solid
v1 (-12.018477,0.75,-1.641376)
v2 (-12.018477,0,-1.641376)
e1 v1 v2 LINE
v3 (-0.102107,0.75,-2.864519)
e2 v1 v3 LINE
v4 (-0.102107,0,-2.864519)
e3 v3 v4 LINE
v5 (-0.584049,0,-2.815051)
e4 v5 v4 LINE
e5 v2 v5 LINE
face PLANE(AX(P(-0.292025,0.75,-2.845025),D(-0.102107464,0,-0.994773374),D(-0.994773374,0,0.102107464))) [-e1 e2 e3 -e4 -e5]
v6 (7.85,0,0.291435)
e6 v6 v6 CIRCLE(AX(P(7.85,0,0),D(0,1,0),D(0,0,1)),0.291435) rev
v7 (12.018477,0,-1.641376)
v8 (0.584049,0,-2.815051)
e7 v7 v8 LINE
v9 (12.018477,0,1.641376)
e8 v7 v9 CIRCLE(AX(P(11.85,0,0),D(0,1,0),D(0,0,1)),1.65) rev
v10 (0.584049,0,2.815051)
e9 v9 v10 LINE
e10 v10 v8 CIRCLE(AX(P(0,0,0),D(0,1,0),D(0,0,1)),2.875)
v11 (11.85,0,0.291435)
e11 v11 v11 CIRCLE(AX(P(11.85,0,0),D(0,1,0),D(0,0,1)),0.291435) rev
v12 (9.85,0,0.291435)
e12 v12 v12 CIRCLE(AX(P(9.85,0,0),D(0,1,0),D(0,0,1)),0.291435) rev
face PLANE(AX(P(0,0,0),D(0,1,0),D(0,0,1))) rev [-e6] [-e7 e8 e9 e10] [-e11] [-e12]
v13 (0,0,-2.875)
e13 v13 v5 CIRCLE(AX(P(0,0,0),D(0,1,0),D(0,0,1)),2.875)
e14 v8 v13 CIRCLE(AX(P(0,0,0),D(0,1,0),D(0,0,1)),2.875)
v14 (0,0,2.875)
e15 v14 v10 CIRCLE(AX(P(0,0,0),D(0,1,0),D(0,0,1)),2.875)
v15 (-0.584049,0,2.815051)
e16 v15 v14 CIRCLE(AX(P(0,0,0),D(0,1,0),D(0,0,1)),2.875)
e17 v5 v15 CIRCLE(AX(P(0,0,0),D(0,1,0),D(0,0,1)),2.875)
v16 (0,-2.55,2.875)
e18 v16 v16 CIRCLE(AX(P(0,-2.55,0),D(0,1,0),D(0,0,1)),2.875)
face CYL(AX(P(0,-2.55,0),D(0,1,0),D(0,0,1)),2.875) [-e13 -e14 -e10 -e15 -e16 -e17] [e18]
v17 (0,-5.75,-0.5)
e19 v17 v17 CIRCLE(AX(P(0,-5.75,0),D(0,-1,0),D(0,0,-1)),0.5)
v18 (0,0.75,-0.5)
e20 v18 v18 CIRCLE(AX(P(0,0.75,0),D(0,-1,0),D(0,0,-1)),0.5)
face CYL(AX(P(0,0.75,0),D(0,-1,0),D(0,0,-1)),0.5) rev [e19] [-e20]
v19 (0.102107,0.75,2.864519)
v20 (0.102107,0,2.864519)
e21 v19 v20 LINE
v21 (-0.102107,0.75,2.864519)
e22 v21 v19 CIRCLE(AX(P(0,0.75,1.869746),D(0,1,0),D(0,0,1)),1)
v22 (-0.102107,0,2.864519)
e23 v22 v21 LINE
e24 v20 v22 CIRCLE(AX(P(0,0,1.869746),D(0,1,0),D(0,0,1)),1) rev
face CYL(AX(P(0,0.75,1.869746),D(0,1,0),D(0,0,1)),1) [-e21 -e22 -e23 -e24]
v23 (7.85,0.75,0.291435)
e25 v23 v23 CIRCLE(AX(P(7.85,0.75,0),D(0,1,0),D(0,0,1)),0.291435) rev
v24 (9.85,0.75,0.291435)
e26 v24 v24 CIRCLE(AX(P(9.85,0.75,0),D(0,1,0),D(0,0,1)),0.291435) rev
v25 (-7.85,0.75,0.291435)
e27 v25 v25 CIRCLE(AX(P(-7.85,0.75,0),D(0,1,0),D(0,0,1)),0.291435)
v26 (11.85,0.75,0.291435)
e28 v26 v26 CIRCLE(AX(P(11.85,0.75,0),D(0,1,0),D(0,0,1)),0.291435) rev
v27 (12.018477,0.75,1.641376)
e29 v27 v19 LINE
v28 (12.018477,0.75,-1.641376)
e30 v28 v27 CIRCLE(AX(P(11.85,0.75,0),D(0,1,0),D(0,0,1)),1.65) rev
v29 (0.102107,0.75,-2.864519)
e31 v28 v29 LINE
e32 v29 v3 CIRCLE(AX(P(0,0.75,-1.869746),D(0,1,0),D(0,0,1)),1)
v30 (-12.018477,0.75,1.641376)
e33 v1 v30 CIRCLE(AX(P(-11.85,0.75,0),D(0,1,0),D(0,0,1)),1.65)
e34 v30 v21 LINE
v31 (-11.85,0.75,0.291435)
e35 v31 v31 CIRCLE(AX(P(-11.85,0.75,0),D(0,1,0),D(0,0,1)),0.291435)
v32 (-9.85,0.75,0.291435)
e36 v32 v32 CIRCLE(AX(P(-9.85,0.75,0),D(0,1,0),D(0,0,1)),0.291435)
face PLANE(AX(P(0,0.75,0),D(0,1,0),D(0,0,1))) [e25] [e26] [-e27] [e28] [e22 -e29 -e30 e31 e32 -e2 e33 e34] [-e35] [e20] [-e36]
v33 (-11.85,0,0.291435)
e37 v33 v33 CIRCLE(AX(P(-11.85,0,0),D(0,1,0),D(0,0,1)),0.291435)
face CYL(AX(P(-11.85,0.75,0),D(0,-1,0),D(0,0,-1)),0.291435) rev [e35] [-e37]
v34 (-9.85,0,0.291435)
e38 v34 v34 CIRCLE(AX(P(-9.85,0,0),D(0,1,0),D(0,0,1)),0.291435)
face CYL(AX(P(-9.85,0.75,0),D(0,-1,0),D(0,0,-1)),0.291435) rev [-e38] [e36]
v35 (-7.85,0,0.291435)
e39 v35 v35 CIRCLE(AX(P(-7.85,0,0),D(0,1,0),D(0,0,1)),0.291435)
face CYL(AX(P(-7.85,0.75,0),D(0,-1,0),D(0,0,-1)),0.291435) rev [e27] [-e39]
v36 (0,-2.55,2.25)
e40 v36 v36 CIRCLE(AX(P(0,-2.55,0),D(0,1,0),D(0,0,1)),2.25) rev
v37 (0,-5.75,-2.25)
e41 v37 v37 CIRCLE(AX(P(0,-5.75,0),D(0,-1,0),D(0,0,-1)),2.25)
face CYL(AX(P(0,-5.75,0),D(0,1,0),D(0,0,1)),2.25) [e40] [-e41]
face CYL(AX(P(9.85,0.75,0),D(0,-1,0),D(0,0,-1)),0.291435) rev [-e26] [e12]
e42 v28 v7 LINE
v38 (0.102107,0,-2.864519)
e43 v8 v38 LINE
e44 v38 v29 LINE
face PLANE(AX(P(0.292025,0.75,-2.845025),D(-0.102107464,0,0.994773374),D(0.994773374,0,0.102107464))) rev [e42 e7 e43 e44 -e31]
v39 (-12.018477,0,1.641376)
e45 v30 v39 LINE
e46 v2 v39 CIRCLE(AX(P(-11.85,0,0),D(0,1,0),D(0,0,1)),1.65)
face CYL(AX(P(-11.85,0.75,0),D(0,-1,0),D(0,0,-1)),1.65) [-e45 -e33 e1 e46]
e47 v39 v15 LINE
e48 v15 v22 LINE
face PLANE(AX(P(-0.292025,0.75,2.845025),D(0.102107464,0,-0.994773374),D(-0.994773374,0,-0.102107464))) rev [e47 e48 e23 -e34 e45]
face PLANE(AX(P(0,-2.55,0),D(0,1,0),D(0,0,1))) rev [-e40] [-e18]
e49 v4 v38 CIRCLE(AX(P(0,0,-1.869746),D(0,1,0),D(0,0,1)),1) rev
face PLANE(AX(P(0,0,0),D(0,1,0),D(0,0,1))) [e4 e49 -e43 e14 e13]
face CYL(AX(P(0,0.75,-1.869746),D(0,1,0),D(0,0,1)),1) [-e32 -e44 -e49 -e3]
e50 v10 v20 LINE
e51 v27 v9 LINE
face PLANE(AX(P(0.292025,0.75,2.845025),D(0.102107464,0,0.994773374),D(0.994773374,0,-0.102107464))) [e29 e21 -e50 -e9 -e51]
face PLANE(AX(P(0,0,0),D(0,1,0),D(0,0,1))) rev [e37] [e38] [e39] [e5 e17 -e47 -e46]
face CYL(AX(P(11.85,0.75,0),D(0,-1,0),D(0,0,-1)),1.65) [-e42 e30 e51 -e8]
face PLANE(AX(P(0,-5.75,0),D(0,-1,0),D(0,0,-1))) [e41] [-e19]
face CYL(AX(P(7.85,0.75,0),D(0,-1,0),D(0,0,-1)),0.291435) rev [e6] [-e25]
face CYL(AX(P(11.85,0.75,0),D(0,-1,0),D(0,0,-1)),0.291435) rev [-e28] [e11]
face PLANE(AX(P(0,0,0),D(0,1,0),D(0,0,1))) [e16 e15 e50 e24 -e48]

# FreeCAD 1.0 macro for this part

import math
import FreeCAD as App
import Part
import Sketcher


def edges_at(feature, points):
    """Names of the edges that pass closest to the given points."""
    edges = feature.Shape.Edges
    near = lambda p: min(range(len(edges)), key=lambda i: edges[i].distToShape(Part.Vertex(*p))[0])
    return sorted({f"Edge{near(p) + 1}" for p in points})

doc = App.newDocument("Part")
body = doc.addObject("PartDesign::Body", "Body")

sketch1 = doc.addObject("Sketcher::SketchObject", "Sketch")
body.addObject(sketch1)
sketch1.AttachmentSupport = (doc.XZ_Plane, [""])
sketch1.MapMode = "FlatFace"
sketch1.addGeometry(Part.Circle(App.Vector(0, 0, 0), App.Vector(0, 0, 1), 2.875), False)
sketch1.addConstraint([
    Sketcher.Constraint("Coincident", 0, 3, -1, 1),
    Sketcher.Constraint("Diameter", 0, 5.75),
])
pad1 = doc.addObject("PartDesign::Pad", "Pad")
body.addObject(pad1)
pad1.Profile = sketch1
pad1.Length = 2.55

sketch2 = doc.addObject("Sketcher::SketchObject", "Sketch001")
body.addObject(sketch2)
sketch2.AttachmentSupport = (doc.XZ_Plane, [""])
sketch2.MapMode = "FlatFace"
sketch2.addGeometry([
    Part.LineSegment(App.Vector(-0.584049, -2.815051, 0), App.Vector(-12.018477, -1.641376, 0)),
    Part.ArcOfCircle(Part.Circle(App.Vector(-11.85, 0, 0), App.Vector(0, 0, 1), 1.65), math.radians(95.860541), math.radians(264.139459)),
    Part.LineSegment(App.Vector(-12.018477, 1.641376, 0), App.Vector(-0.584049, 2.815051, 0)),
    Part.LineSegment(App.Vector(-0.584049, 2.815051, 0), App.Vector(0, 2.875, 0)),
    Part.LineSegment(App.Vector(0, 2.875, 0), App.Vector(0.584049, 2.815051, 0)),
    Part.LineSegment(App.Vector(0.584049, 2.815051, 0), App.Vector(12.018477, 1.641376, 0)),
    Part.ArcOfCircle(Part.Circle(App.Vector(11.85, 0, 0), App.Vector(0, 0, 1), 1.65), math.radians(-84.139459), math.radians(84.139459)),
    Part.LineSegment(App.Vector(12.018477, -1.641376, 0), App.Vector(0.584049, -2.815051, 0)),
    Part.LineSegment(App.Vector(0.584049, -2.815051, 0), App.Vector(0, -2.875, 0)),
    Part.LineSegment(App.Vector(0, -2.875, 0), App.Vector(-0.584049, -2.815051, 0)),
    Part.Circle(App.Vector(-11.85, 0, 0), App.Vector(0, 0, 1), 0.291435),
    Part.Circle(App.Vector(-9.85, 0, 0), App.Vector(0, 0, 1), 0.291435),
    Part.Circle(App.Vector(-7.85, 0, 0), App.Vector(0, 0, 1), 0.291435),
    Part.Circle(App.Vector(9.85, 0, 0), App.Vector(0, 0, 1), 0.291435),
    Part.Circle(App.Vector(11.85, 0, 0), App.Vector(0, 0, 1), 0.291435),
    Part.Circle(App.Vector(7.85, 0, 0), App.Vector(0, 0, 1), 0.291435),
], False)
sketch2.addConstraint([
    Sketcher.Constraint("Tangent", 0, 2, 1, 2),
    Sketcher.Constraint("Tangent", 1, 1, 2, 1),
    Sketcher.Constraint("Coincident", 2, 2, 3, 1),
    Sketcher.Constraint("Coincident", 3, 2, 4, 1),
    Sketcher.Constraint("Coincident", 4, 2, 5, 1),
    Sketcher.Constraint("Tangent", 5, 2, 6, 2),
    Sketcher.Constraint("Tangent", 6, 1, 7, 1),
    Sketcher.Constraint("Coincident", 7, 2, 8, 1),
    Sketcher.Constraint("Coincident", 8, 2, 9, 1),
    Sketcher.Constraint("Coincident", 9, 2, 0, 1),
    Sketcher.Constraint("Coincident", 10, 3, 1, 3),
    Sketcher.Constraint("Coincident", 14, 3, 6, 3),
    Sketcher.Constraint("Equal", 1, 6),
    Sketcher.Constraint("Equal", 10, 11),
    Sketcher.Constraint("Equal", 11, 12),
    Sketcher.Constraint("Equal", 12, 13),
    Sketcher.Constraint("Equal", 13, 14),
    Sketcher.Constraint("Equal", 14, 15),
    Sketcher.Constraint("Symmetric", 1, 3, 6, 3, -1, 1),
    Sketcher.Constraint("Symmetric", 11, 3, 13, 3, -1, 1),
    Sketcher.Constraint("Symmetric", 12, 3, 15, 3, -1, 1),
    Sketcher.Constraint("Symmetric", 2, 2, 7, 2, -1, 1),
    Sketcher.Constraint("Symmetric", 3, 2, 8, 2, -1, 1),
    Sketcher.Constraint("Symmetric", 4, 2, 9, 2, -1, 1),
    Sketcher.Constraint("Symmetric", 2, 2, 4, 2, -2),
    Sketcher.Constraint("PointOnObject", 1, 3, -1),
    Sketcher.Constraint("PointOnObject", 11, 3, -1),
    Sketcher.Constraint("PointOnObject", 12, 3, -1),
    Sketcher.Constraint("PointOnObject", 3, 2, -2),
    Sketcher.Constraint("Parallel", 2, 3),
    Sketcher.Constraint("Radius", 1, 1.65),
    Sketcher.Constraint("DistanceX", 1, 3, 11, 3, 2.0),
    Sketcher.Constraint("DistanceX", 11, 3, 12, 3, 2.0),
    Sketcher.Constraint("DistanceX", 1, 3, 6, 3, 23.7),
    Sketcher.Constraint("Diameter", 10, 0.582869),
    Sketcher.Constraint("DistanceY", 8, 2, 3, 2, 5.75),
    Sketcher.Constraint("DistanceX", 2, 2, 4, 2, 1.168099),
])
pad2 = doc.addObject("PartDesign::Pad", "Pad001")
body.addObject(pad2)
pad2.Profile = sketch2
pad2.Length = 0.75
pad2.Reversed = True

sketch3 = doc.addObject("Sketcher::SketchObject", "Sketch002")
body.addObject(sketch3)
sketch3.AttachmentSupport = (doc.XZ_Plane, [""])
sketch3.MapMode = "FlatFace"
sketch3.AttachmentOffset = App.Placement(App.Vector(0, 0, 2.55), App.Rotation())
sketch3.addGeometry(Part.Circle(App.Vector(0, 0, 0), App.Vector(0, 0, 1), 2.25), False)
sketch3.addConstraint([
    Sketcher.Constraint("Coincident", 0, 3, -1, 1),
    Sketcher.Constraint("Diameter", 0, 4.5),
])
pad3 = doc.addObject("PartDesign::Pad", "Pad002")
body.addObject(pad3)
pad3.Profile = sketch3
pad3.Length = 3.2

sketch4 = doc.addObject("Sketcher::SketchObject", "Sketch003")
body.addObject(sketch4)
sketch4.AttachmentSupport = (doc.XZ_Plane, [""])
sketch4.MapMode = "FlatFace"
sketch4.AttachmentOffset = App.Placement(App.Vector(0, 0, 5.75), App.Rotation())
sketch4.addGeometry(Part.Circle(App.Vector(0, 0, 0), App.Vector(0, 0, 1), 0.5), False)
sketch4.addConstraint([
    Sketcher.Constraint("Coincident", 0, 3, -1, 1),
    Sketcher.Constraint("Diameter", 0, 1.0),
])
pocket1 = doc.addObject("PartDesign::Pocket", "Pocket")
body.addObject(pocket1)
pocket1.Profile = sketch4
pocket1.Type = "ThroughAll"
doc.recompute()

fillet = doc.addObject("PartDesign::Fillet", "Fillet")
body.addObject(fillet)
fillet.Base = (pocket1, edges_at(pocket1, [(0, 0.375, -2.875), (0, 0.375, 2.875)]))
fillet.Radius = 1

doc.recompute()
